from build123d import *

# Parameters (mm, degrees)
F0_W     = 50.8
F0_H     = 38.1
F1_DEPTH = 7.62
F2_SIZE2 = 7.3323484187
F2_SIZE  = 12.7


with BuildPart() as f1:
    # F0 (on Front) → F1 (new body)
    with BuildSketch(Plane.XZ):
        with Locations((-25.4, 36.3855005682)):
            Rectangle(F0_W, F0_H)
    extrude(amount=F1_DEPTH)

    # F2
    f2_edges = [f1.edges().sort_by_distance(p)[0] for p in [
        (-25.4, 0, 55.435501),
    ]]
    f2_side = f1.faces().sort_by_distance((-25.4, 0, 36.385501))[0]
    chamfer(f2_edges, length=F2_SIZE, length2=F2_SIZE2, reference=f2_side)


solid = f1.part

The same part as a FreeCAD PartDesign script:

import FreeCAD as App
import Part
import Sketcher

V = App.Vector
Q = App.Units.Quantity


def edges_at(feature, points):
    """Names of the edges that pass closest to the given points."""
    edges = feature.Shape.Edges
    near = lambda p: min(range(len(edges)), key=lambda i: edges[i].distToShape(Part.Vertex(*p))[0])
    return sorted({f"Edge{near(p) + 1}" for p in points})

doc = App.newDocument("Part")
body = doc.addObject("PartDesign::Body", "Body")

# Sketch on XZ plane
sketch1 = body.newObject("Sketcher::SketchObject", "Sketch")
sketch1.AttachmentSupport = (doc.getObject("XZ_Plane"), [""])
sketch1.MapMode = "FlatFace"
sketch1.addGeometry([
    Part.LineSegment(V(-50.8, 55.435501, 0), V(-50.8, 17.335501, 0)),
    Part.LineSegment(V(-50.8, 17.335501, 0), V(0, 17.335501, 0)),
    Part.LineSegment(V(0, 17.335501, 0), V(0, 55.435501, 0)),
    Part.LineSegment(V(0, 55.435501, 0), V(-50.8, 55.435501, 0)),
], False)
sketch1.addConstraint([
    Sketcher.Constraint("Coincident", 0, 2, 1, 1),
    Sketcher.Constraint("Coincident", 1, 2, 2, 1),
    Sketcher.Constraint("Coincident", 2, 2, 3, 1),
    Sketcher.Constraint("Coincident", 3, 2, 0, 1),
    Sketcher.Constraint("Vertical", 0),
    Sketcher.Constraint("Horizontal", 1),
    Sketcher.Constraint("Vertical", 2),
    Sketcher.Constraint("Horizontal", 3),
    Sketcher.Constraint("PointOnObject", 1, 2, -2),
    Sketcher.Constraint("DistanceX", 1, 1, 1, 2, Q("2 in")),
    Sketcher.Constraint("DistanceY", 0, 2, 0, 1, Q("1.5 in")),
    Sketcher.Constraint("DistanceY", -1, 1, 0, 2, Q("0.6825 in")),
])
pad1 = body.newObject("PartDesign::Pad", "Pad")
pad1.Profile = sketch1
pad1.Length = Q("0.3 in")
doc.recompute()

chamfer = body.newObject("PartDesign::Chamfer", "Chamfer")
chamfer.Base = (pad1, edges_at(pad1, [(-25.4, 0, 55.436)]))
chamfer.ChamferType = "Two distances"
chamfer.Size = Q("0.5 in")
chamfer.Size2 = 7.332348
chamfer.FlipDirection = True

doc.recompute()
